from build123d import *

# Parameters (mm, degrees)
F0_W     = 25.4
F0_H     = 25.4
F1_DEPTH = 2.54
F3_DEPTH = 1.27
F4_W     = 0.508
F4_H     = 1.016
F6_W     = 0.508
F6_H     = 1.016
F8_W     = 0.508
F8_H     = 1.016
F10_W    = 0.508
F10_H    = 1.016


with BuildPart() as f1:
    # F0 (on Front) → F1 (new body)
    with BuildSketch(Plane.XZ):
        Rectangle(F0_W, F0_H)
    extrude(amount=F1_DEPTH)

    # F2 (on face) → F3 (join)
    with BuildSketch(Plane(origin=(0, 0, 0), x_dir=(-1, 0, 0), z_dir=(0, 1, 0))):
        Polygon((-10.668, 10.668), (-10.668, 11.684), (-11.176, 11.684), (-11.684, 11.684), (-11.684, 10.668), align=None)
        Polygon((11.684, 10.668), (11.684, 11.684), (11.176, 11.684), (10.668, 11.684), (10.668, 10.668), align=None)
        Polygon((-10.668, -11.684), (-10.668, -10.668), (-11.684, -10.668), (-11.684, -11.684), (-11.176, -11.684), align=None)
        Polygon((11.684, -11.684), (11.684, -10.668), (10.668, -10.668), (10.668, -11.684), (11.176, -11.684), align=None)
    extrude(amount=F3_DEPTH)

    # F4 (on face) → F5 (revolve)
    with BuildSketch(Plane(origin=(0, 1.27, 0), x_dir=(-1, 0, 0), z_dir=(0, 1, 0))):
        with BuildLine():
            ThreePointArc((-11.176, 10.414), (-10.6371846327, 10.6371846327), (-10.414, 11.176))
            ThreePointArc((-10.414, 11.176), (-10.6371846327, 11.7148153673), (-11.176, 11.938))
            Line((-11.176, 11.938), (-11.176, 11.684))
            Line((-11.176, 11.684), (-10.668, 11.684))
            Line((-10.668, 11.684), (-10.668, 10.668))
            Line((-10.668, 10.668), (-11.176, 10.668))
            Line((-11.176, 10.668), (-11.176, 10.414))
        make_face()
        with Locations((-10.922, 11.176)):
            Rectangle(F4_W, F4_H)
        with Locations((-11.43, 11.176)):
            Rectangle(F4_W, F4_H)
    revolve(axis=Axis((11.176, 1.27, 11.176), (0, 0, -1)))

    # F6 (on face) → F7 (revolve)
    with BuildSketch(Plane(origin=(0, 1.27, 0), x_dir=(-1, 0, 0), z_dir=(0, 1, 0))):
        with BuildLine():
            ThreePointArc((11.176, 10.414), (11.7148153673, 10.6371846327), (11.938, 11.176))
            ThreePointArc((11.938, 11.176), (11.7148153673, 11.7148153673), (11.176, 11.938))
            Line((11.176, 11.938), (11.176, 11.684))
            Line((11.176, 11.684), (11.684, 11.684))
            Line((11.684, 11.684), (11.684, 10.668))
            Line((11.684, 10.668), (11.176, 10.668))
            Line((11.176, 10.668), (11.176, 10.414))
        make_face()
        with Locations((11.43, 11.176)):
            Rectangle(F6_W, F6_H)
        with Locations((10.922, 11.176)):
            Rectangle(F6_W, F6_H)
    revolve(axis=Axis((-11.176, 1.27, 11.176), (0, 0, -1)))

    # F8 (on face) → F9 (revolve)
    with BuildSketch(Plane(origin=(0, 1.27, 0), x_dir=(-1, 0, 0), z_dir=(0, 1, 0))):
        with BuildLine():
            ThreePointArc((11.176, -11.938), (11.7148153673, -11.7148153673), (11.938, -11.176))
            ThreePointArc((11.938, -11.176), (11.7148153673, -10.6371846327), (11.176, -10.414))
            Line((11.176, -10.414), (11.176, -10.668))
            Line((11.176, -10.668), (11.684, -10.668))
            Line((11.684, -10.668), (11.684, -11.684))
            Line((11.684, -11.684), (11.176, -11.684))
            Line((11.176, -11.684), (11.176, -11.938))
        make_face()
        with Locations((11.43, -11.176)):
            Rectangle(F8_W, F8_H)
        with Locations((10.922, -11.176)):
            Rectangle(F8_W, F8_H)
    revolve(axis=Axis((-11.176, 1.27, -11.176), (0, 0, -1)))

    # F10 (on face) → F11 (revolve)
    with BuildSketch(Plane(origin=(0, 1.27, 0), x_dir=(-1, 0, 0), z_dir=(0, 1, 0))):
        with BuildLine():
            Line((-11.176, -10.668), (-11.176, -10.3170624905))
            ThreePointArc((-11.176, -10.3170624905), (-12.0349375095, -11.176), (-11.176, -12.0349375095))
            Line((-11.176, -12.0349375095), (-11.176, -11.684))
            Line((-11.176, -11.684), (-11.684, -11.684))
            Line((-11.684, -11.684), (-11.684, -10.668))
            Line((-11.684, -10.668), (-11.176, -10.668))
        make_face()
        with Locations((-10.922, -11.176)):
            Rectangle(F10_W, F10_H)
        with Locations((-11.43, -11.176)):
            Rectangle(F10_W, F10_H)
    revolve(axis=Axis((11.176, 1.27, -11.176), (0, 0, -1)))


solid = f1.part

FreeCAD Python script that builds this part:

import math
import FreeCAD as App
import Part
import Sketcher

V = App.Vector
Q = App.Units.Quantity

doc = App.newDocument("Part")
body = doc.addObject("PartDesign::Body", "Body")

# Sketch on XZ plane
sketch1 = body.newObject("Sketcher::SketchObject", "Sketch")
sketch1.AttachmentSupport = (doc.getObject("XZ_Plane"), [""])
sketch1.MapMode = "FlatFace"
sketch1.addGeometry([
    Part.LineSegment(V(-12.7, 12.7, 0), V(-12.7, -12.7, 0)),
    Part.LineSegment(V(-12.7, -12.7, 0), V(12.7, -12.7, 0)),
    Part.LineSegment(V(12.7, -12.7, 0), V(12.7, 12.7, 0)),
    Part.LineSegment(V(12.7, 12.7, 0), V(-12.7, 12.7, 0)),
], False)
sketch1.addConstraint([
    Sketcher.Constraint("Coincident", 0, 2, 1, 1),
    Sketcher.Constraint("Coincident", 1, 2, 2, 1),
    Sketcher.Constraint("Coincident", 2, 2, 3, 1),
    Sketcher.Constraint("Coincident", 3, 2, 0, 1),
    Sketcher.Constraint("Vertical", 0),
    Sketcher.Constraint("Horizontal", 1),
    Sketcher.Constraint("Vertical", 2),
    Sketcher.Constraint("Horizontal", 3),
    Sketcher.Constraint("Symmetric", 0, 2, 2, 2, -1, 1),
    Sketcher.Constraint("Equal", 3, 0),
    Sketcher.Constraint("DistanceX", 1, 1, 1, 2, Q("1 in")),
])
pad1 = body.newObject("PartDesign::Pad", "Pad")
pad1.Profile = sketch1
pad1.Length = Q("0.1 in")

# Sketch on XZ plane
sketch2 = body.newObject("Sketcher::SketchObject", "Sketch001")
sketch2.AttachmentSupport = (doc.getObject("XZ_Plane"), [""])
sketch2.MapMode = "FlatFace"
sketch2.addGeometry([
    Part.LineSegment(V(10.668, 10.668, 0), V(10.668, 11.684, 0)),  # 0
    Part.LineSegment(V(10.668, 11.684, 0), V(11.684, 11.684, 0)),  # 1
    Part.LineSegment(V(11.684, 11.684, 0), V(11.684, 10.668, 0)),  # 2
    Part.LineSegment(V(11.684, 10.668, 0), V(10.668, 10.668, 0)),  # 3
    Part.LineSegment(V(-11.684, 10.668, 0), V(-11.684, 11.684, 0)),  # 4
    Part.LineSegment(V(-11.684, 11.684, 0), V(-10.668, 11.684, 0)),  # 5
    Part.LineSegment(V(-10.668, 11.684, 0), V(-10.668, 10.668, 0)),  # 6
    Part.LineSegment(V(-10.668, 10.668, 0), V(-11.684, 10.668, 0)),  # 7
    Part.LineSegment(V(10.668, -11.684, 0), V(10.668, -10.668, 0)),  # 8
    Part.LineSegment(V(10.668, -10.668, 0), V(11.684, -10.668, 0)),  # 9
    Part.LineSegment(V(11.684, -10.668, 0), V(11.684, -11.684, 0)),  # 10
    Part.LineSegment(V(11.684, -11.684, 0), V(10.668, -11.684, 0)),  # 11
    Part.LineSegment(V(-11.684, -11.684, 0), V(-11.684, -10.668, 0)),  # 12
    Part.LineSegment(V(-11.684, -10.668, 0), V(-10.668, -10.668, 0)),  # 13
    Part.LineSegment(V(-10.668, -10.668, 0), V(-10.668, -11.684, 0)),  # 14
    Part.LineSegment(V(-10.668, -11.684, 0), V(-11.684, -11.684, 0)),  # 15
], False)
sketch2.addConstraint([
    Sketcher.Constraint("Coincident", 0, 2, 1, 1),
    Sketcher.Constraint("Coincident", 1, 2, 2, 1),
    Sketcher.Constraint("Coincident", 2, 2, 3, 1),
    Sketcher.Constraint("Coincident", 3, 2, 0, 1),
    Sketcher.Constraint("Coincident", 4, 2, 5, 1),
    Sketcher.Constraint("Coincident", 5, 2, 6, 1),
    Sketcher.Constraint("Coincident", 6, 2, 7, 1),
    Sketcher.Constraint("Coincident", 7, 2, 4, 1),
    Sketcher.Constraint("Coincident", 8, 2, 9, 1),
    Sketcher.Constraint("Coincident", 9, 2, 10, 1),
    Sketcher.Constraint("Coincident", 10, 2, 11, 1),
    Sketcher.Constraint("Coincident", 11, 2, 8, 1),
    Sketcher.Constraint("Coincident", 12, 2, 13, 1),
    Sketcher.Constraint("Coincident", 13, 2, 14, 1),
    Sketcher.Constraint("Coincident", 14, 2, 15, 1),
    Sketcher.Constraint("Coincident", 15, 2, 12, 1),
    Sketcher.Constraint("Vertical", 0),
    Sketcher.Constraint("Horizontal", 1),
    Sketcher.Constraint("Vertical", 2),
    Sketcher.Constraint("Horizontal", 3),
    Sketcher.Constraint("Vertical", 4),
    Sketcher.Constraint("Horizontal", 5),
    Sketcher.Constraint("Vertical", 6),
    Sketcher.Constraint("Horizontal", 7),
    Sketcher.Constraint("Vertical", 8),
    Sketcher.Constraint("Horizontal", 9),
    Sketcher.Constraint("Vertical", 10),
    Sketcher.Constraint("Horizontal", 11),
    Sketcher.Constraint("Vertical", 12),
    Sketcher.Constraint("Horizontal", 13),
    Sketcher.Constraint("Vertical", 14),
    Sketcher.Constraint("Horizontal", 15),
    Sketcher.Constraint("Symmetric", 6, 2, 8, 2, -1, 1),
    Sketcher.Constraint("Symmetric", 4, 2, 10, 2, -1, 1),
    Sketcher.Constraint("Symmetric", 2, 2, 12, 2, -1, 1),
    Sketcher.Constraint("Symmetric", 0, 2, 14, 2, -1, 1),
    Sketcher.Constraint("Symmetric", 1, 2, 4, 2, -2),
    Sketcher.Constraint("Symmetric", 3, 2, 6, 2, -2),
    Sketcher.Constraint("Equal", 15, 0),
    Sketcher.Constraint("DistanceX", 1, 1, 1, 2, Q("0.04 in")),
    Sketcher.Constraint("DistanceX", -1, 1, 0, 2, Q("0.42 in")),
    Sketcher.Constraint("DistanceY", -1, 1, 0, 2, Q("0.46 in")),
])
pad2 = body.newObject("PartDesign::Pad", "Pad001")
pad2.Profile = sketch2
pad2.Length = Q("0.05 in")
pad2.Reversed = True

# Sketch on XZ plane
sketch3 = body.newObject("Sketcher::SketchObject", "Sketch002")
sketch3.AttachmentSupport = (doc.getObject("XZ_Plane"), [""])
sketch3.MapMode = "FlatFace"
sketch3.AttachmentOffset = App.Placement(V(0, 0, -0.05 * 25.4), App.Rotation())
sketch3.addGeometry([
    Part.ArcOfCircle(Part.Circle(V(11.176, 11.176, 0), V(0, 0, 1), 0.762), math.radians(180), math.radians(270)),  # 0
    Part.ArcOfCircle(Part.Circle(V(11.176, 11.176, 0), V(0, 0, 1), 0.762), math.radians(90), math.radians(180)),  # 1
    Part.LineSegment(V(11.176, 11.938, 0), V(11.176, 11.684, 0)),  # 2
    Part.LineSegment(V(11.176, 11.684, 0), V(11.684, 11.684, 0)),  # 3
    Part.LineSegment(V(11.684, 11.684, 0), V(11.684, 10.668, 0)),  # 4
    Part.LineSegment(V(11.684, 10.668, 0), V(11.176, 10.668, 0)),  # 5
    Part.LineSegment(V(11.176, 10.668, 0), V(11.176, 10.414, 0)),  # 6
], False)
sketch3.addGeometry(Part.LineSegment(V(11.176, 11.938, 0), V(11.176, 10.414, 0)), True)  # axis
sketch3.addConstraint([
    Sketcher.Constraint("Tangent", 0, 1, 1, 2),
    Sketcher.Constraint("Coincident", 1, 1, 2, 1),
    Sketcher.Constraint("Coincident", 2, 2, 3, 1),
    Sketcher.Constraint("Coincident", 3, 2, 4, 1),
    Sketcher.Constraint("Coincident", 4, 2, 5, 1),
    Sketcher.Constraint("Coincident", 5, 2, 6, 1),
    Sketcher.Constraint("Coincident", 6, 2, 0, 2),
    Sketcher.Constraint("Vertical", 2),
    Sketcher.Constraint("Horizontal", 3),
    Sketcher.Constraint("Vertical", 4),
    Sketcher.Constraint("Horizontal", 5),
    Sketcher.Constraint("Vertical", 6),
    Sketcher.Constraint("Vertical", 7),
    Sketcher.Constraint("Coincident", 7, 1, 1, 1),
    Sketcher.Constraint("Coincident", 7, 2, 6, 2),
    Sketcher.Constraint("Equal", 0, 1),
    Sketcher.Constraint("Horizontal", 1, 3, 0, 1),
    Sketcher.Constraint("Vertical", 0, 3, 1, 1),
    Sketcher.Constraint("Equal", 2, 6),
    Sketcher.Constraint("Radius", 0, Q("0.03 in")),
    Sketcher.Constraint("DistanceX", 3, 1, 3, 2, Q("0.02 in")),
    Sketcher.Constraint("DistanceY", 2, 2, 2, 1, Q("0.01 in")),
    Sketcher.Constraint("DistanceX", -1, 1, 0, 3, Q("0.44 in")),
    Sketcher.Constraint("DistanceY", -1, 1, 0, 3, Q("0.44 in")),
])
revolution = body.newObject("PartDesign::Revolution", "Revolution")
revolution.Profile = sketch3
revolution.ReferenceAxis = (sketch3, ["Axis0"])
revolution.Angle = 360

# Sketch on XZ plane
sketch4 = body.newObject("Sketcher::SketchObject", "Sketch003")
sketch4.AttachmentSupport = (doc.getObject("XZ_Plane"), [""])
sketch4.MapMode = "FlatFace"
sketch4.AttachmentOffset = App.Placement(V(0, 0, -0.05 * 25.4), App.Rotation())
sketch4.addGeometry([
    Part.ArcOfCircle(Part.Circle(V(-11.176, 11.176, 0), V(0, 0, 1), 0.762), math.radians(180), math.radians(270)),  # 0
    Part.ArcOfCircle(Part.Circle(V(-11.176, 11.176, 0), V(0, 0, 1), 0.762), math.radians(90), math.radians(180)),  # 1
    Part.LineSegment(V(-11.176, 11.938, 0), V(-11.176, 11.684, 0)),  # 2
    Part.LineSegment(V(-11.176, 11.684, 0), V(-10.668, 11.684, 0)),  # 3
    Part.LineSegment(V(-10.668, 11.684, 0), V(-10.668, 10.668, 0)),  # 4
    Part.LineSegment(V(-10.668, 10.668, 0), V(-11.176, 10.668, 0)),  # 5
    Part.LineSegment(V(-11.176, 10.668, 0), V(-11.176, 10.414, 0)),  # 6
], False)
sketch4.addGeometry(Part.LineSegment(V(-11.176, 11.938, 0), V(-11.176, 10.414, 0)), True)  # axis
sketch4.addConstraint([
    Sketcher.Constraint("Tangent", 0, 1, 1, 2),
    Sketcher.Constraint("Coincident", 1, 1, 2, 1),
    Sketcher.Constraint("Coincident", 2, 2, 3, 1),
    Sketcher.Constraint("Coincident", 3, 2, 4, 1),
    Sketcher.Constraint("Coincident", 4, 2, 5, 1),
    Sketcher.Constraint("Coincident", 5, 2, 6, 1),
    Sketcher.Constraint("Coincident", 6, 2, 0, 2),
    Sketcher.Constraint("Vertical", 2),
    Sketcher.Constraint("Horizontal", 3),
    Sketcher.Constraint("Vertical", 4),
    Sketcher.Constraint("Horizontal", 5),
    Sketcher.Constraint("Vertical", 6),
    Sketcher.Constraint("Vertical", 7),
    Sketcher.Constraint("Coincident", 7, 1, 1, 1),
    Sketcher.Constraint("Coincident", 7, 2, 6, 2),
    Sketcher.Constraint("Equal", 0, 1),
    Sketcher.Constraint("Horizontal", 1, 3, 0, 1),
    Sketcher.Constraint("Vertical", 0, 3, 1, 1),
    Sketcher.Constraint("Equal", 2, 6),
    Sketcher.Constraint("Radius", 0, Q("0.03 in")),
    Sketcher.Constraint("DistanceX", 3, 1, 3, 2, Q("0.02 in")),
    Sketcher.Constraint("DistanceY", 2, 2, 2, 1, Q("0.01 in")),
    Sketcher.Constraint("DistanceX", 0, 3, -1, 1, Q("0.44 in")),
    Sketcher.Constraint("DistanceY", -1, 1, 0, 3, Q("0.44 in")),
])
revolution2 = body.newObject("PartDesign::Revolution", "Revolution001")
revolution2.Profile = sketch4
revolution2.ReferenceAxis = (sketch4, ["Axis0"])
revolution2.Angle = 360

# Sketch on XZ plane
sketch5 = body.newObject("Sketcher::SketchObject", "Sketch004")
sketch5.AttachmentSupport = (doc.getObject("XZ_Plane"), [""])
sketch5.MapMode = "FlatFace"
sketch5.AttachmentOffset = App.Placement(V(0, 0, -0.05 * 25.4), App.Rotation())
sketch5.addGeometry([
    Part.ArcOfCircle(Part.Circle(V(-11.176, -11.176, 0), V(0, 0, 1), 0.762), math.radians(180), math.radians(270)),  # 0
    Part.ArcOfCircle(Part.Circle(V(-11.176, -11.176, 0), V(0, 0, 1), 0.762), math.radians(90), math.radians(180)),  # 1
    Part.LineSegment(V(-11.176, -10.414, 0), V(-11.176, -10.668, 0)),  # 2
    Part.LineSegment(V(-11.176, -10.668, 0), V(-10.668, -10.668, 0)),  # 3
    Part.LineSegment(V(-10.668, -10.668, 0), V(-10.668, -11.684, 0)),  # 4
    Part.LineSegment(V(-10.668, -11.684, 0), V(-11.176, -11.684, 0)),  # 5
    Part.LineSegment(V(-11.176, -11.684, 0), V(-11.176, -11.938, 0)),  # 6
], False)
sketch5.addGeometry(Part.LineSegment(V(-11.176, -10.414, 0), V(-11.176, -11.938, 0)), True)  # axis
sketch5.addConstraint([
    Sketcher.Constraint("Tangent", 0, 1, 1, 2),
    Sketcher.Constraint("Coincident", 1, 1, 2, 1),
    Sketcher.Constraint("Coincident", 2, 2, 3, 1),
    Sketcher.Constraint("Coincident", 3, 2, 4, 1),
    Sketcher.Constraint("Coincident", 4, 2, 5, 1),
    Sketcher.Constraint("Coincident", 5, 2, 6, 1),
    Sketcher.Constraint("Coincident", 6, 2, 0, 2),
    Sketcher.Constraint("Vertical", 2),
    Sketcher.Constraint("Horizontal", 3),
    Sketcher.Constraint("Vertical", 4),
    Sketcher.Constraint("Horizontal", 5),
    Sketcher.Constraint("Vertical", 6),
    Sketcher.Constraint("Vertical", 7),
    Sketcher.Constraint("Coincident", 7, 1, 1, 1),
    Sketcher.Constraint("Coincident", 7, 2, 6, 2),
    Sketcher.Constraint("Equal", 0, 1),
    Sketcher.Constraint("Horizontal", 1, 3, 0, 1),
    Sketcher.Constraint("Vertical", 0, 3, 1, 1),
    Sketcher.Constraint("Equal", 2, 6),
    Sketcher.Constraint("Radius", 0, Q("0.03 in")),
    Sketcher.Constraint("DistanceX", 3, 1, 3, 2, Q("0.02 in")),
    Sketcher.Constraint("DistanceY", 2, 2, 2, 1, Q("0.01 in")),
    Sketcher.Constraint("DistanceX", 0, 3, -1, 1, Q("0.44 in")),
    Sketcher.Constraint("DistanceY", 0, 3, -1, 1, Q("0.44 in")),
])
revolution3 = body.newObject("PartDesign::Revolution", "Revolution002")
revolution3.Profile = sketch5
revolution3.ReferenceAxis = (sketch5, ["Axis0"])
revolution3.Angle = 360

# Sketch on XZ plane
sketch6 = body.newObject("Sketcher::SketchObject", "Sketch005")
sketch6.AttachmentSupport = (doc.getObject("XZ_Plane"), [""])
sketch6.MapMode = "FlatFace"
sketch6.AttachmentOffset = App.Placement(V(0, 0, -0.05 * 25.4), App.Rotation())
sketch6.addGeometry([
    Part.LineSegment(V(11.176, -10.668, 0), V(11.176, -10.317062, 0)),  # 0
    Part.ArcOfCircle(Part.Circle(V(11.176, -11.176, 0), V(0, 0, 1), 0.858938), math.radians(-90), math.radians(90)),  # 1
    Part.LineSegment(V(11.176, -12.034938, 0), V(11.176, -11.684, 0)),  # 2
    Part.LineSegment(V(11.176, -11.684, 0), V(10.668, -11.684, 0)),  # 3
    Part.LineSegment(V(10.668, -11.684, 0), V(10.668, -10.668, 0)),  # 4
    Part.LineSegment(V(10.668, -10.668, 0), V(11.176, -10.668, 0)),  # 5
], False)
sketch6.addGeometry(Part.LineSegment(V(11.176, -10.317062, 0), V(11.176, -12.034938, 0)), True)  # axis
sketch6.addConstraint([
    Sketcher.Constraint("Coincident", 0, 2, 1, 2),
    Sketcher.Constraint("Coincident", 1, 1, 2, 1),
    Sketcher.Constraint("Coincident", 2, 2, 3, 1),
    Sketcher.Constraint("Coincident", 3, 2, 4, 1),
    Sketcher.Constraint("Coincident", 4, 2, 5, 1),
    Sketcher.Constraint("Coincident", 5, 2, 0, 1),
    Sketcher.Constraint("Vertical", 0),
    Sketcher.Constraint("Vertical", 2),
    Sketcher.Constraint("Horizontal", 3),
    Sketcher.Constraint("Vertical", 4),
    Sketcher.Constraint("Horizontal", 5),
    Sketcher.Constraint("Vertical", 6),
    Sketcher.Constraint("Coincident", 6, 1, 0, 2),
    Sketcher.Constraint("Coincident", 6, 2, 1, 1),
    Sketcher.Constraint("Vertical", 1, 3, 0, 2),
    Sketcher.Constraint("Equal", 0, 2),
    Sketcher.Constraint("DistanceX", 3, 2, 3, 1, Q("0.02 in")),
    Sketcher.Constraint("DistanceY", 4, 1, 4, 2, Q("0.04 in")),
    Sketcher.Constraint("DistanceX", -1, 1, 1, 3, Q("0.44 in")),
    Sketcher.Constraint("DistanceY", 1, 3, -1, 1, Q("0.44 in")),
    Sketcher.Constraint("Radius", 1, Q("0.858938 mm")),
])
revolution4 = body.newObject("PartDesign::Revolution", "Revolution003")
revolution4.Profile = sketch6
revolution4.ReferenceAxis = (sketch6, ["Axis0"])
revolution4.Angle = 360

doc.recompute()
